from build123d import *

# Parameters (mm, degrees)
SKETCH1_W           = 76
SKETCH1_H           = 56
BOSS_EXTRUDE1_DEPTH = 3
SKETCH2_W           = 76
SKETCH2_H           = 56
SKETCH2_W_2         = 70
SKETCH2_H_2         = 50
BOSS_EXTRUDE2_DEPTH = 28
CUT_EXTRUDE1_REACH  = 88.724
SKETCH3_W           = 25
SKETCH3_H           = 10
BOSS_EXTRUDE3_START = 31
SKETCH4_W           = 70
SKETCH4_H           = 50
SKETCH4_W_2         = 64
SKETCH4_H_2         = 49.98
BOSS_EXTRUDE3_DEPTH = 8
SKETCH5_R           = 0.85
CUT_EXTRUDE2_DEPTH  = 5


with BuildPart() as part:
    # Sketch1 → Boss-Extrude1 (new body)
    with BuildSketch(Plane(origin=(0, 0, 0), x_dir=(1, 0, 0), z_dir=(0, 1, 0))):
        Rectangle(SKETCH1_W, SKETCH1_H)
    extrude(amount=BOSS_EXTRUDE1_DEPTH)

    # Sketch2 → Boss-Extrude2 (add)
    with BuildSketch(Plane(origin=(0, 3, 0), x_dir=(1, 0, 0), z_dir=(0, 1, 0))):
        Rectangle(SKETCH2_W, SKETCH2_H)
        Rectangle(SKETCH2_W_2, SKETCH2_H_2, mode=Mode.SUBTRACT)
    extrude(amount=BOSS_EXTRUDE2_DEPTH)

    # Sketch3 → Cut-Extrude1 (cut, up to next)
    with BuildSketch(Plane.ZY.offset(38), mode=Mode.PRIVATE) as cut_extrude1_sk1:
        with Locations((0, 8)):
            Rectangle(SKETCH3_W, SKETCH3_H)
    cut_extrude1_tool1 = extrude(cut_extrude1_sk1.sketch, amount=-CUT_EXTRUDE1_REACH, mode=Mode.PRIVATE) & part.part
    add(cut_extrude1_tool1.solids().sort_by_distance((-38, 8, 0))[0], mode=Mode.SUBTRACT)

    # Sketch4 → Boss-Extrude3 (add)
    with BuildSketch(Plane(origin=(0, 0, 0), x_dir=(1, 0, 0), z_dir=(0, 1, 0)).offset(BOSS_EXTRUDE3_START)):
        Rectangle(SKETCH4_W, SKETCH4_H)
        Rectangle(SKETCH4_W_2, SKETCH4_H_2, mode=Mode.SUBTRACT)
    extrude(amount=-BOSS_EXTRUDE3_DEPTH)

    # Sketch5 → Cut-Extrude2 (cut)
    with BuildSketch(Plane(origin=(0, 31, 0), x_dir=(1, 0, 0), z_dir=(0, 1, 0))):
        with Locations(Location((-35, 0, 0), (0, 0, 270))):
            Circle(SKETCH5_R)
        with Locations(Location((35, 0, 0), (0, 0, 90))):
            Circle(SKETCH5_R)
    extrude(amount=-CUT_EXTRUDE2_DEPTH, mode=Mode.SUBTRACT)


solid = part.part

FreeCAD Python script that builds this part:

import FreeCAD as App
import Part
import Sketcher
from FreeCAD import Vector
Q = App.Units.Quantity

doc = App.newDocument("Part")
params = doc.addObject("Spreadsheet::Sheet", "Params")
for row, (alias, value) in enumerate([
    ("sketch1_width", "76 mm"),
    ("sketch1_height", "56 mm"),
    ("pad1_length", "3 mm"),
    ("sketch2_width", "76 mm"),
    ("sketch2_width2", "70 mm"),
    ("sketch2_height", "56 mm"),
    ("sketch2_height2", "50 mm"),
    ("pad2_length", "28 mm"),
    ("sketch3_width", "10 mm"),
    ("sketch3_height", "25 mm"),
    ("sketch4_width", "70 mm"),
    ("sketch4_width2", "64 mm"),
    ("sketch4_height", "50 mm"),
    ("sketch4_height2", "49.98 mm"),
    ("pad3_length", "8 mm"),
    ("sketch5_diameter", "1.7 mm"),
    ("pocket2_length", "5 mm"),
], start=1):
    params.set(f"A{row}", alias)
    params.set(f"B{row}", "=" + value)
    params.setAlias(f"B{row}", alias)

body = doc.addObject("PartDesign::Body", "Body")

sketch1 = doc.addObject("Sketcher::SketchObject", "Sketch")
body.addObject(sketch1)
sketch1.AttachmentSupport = (doc.XZ_Plane, [""])
sketch1.MapMode = "FlatFace"
sketch1.addGeometry([
    Part.LineSegment(Vector(-38, -28, 0), Vector(-38, 28, 0)),
    Part.LineSegment(Vector(-38, 28, 0), Vector(38, 28, 0)),
    Part.LineSegment(Vector(38, 28, 0), Vector(38, -28, 0)),
    Part.LineSegment(Vector(38, -28, 0), Vector(-38, -28, 0)),
], False)
sketch1.addConstraint([
    Sketcher.Constraint("Coincident", 0, 2, 1, 1),
    Sketcher.Constraint("Coincident", 1, 2, 2, 1),
    Sketcher.Constraint("Coincident", 2, 2, 3, 1),
    Sketcher.Constraint("Coincident", 3, 2, 0, 1),
    Sketcher.Constraint("Vertical", 0),
    Sketcher.Constraint("Horizontal", 1),
    Sketcher.Constraint("Vertical", 2),
    Sketcher.Constraint("Horizontal", 3),
    Sketcher.Constraint("Symmetric", 0, 2, 2, 2, -1, 1),
    Sketcher.Constraint("DistanceX", 1, 1, 1, 2, Q("76 mm")),
    Sketcher.Constraint("DistanceY", 0, 1, 0, 2, Q("56 mm")),
])
sketch1.setExpression("Constraints[9]", "Params.sketch1_width")
sketch1.setExpression("Constraints[10]", "Params.sketch1_height")
pad1 = doc.addObject("PartDesign::Pad", "Pad")
body.addObject(pad1)
pad1.Profile = sketch1
pad1.setExpression("Length", "Params.pad1_length")
pad1.Reversed = True

sketch2 = doc.addObject("Sketcher::SketchObject", "Sketch001")
body.addObject(sketch2)
sketch2.AttachmentSupport = (doc.XZ_Plane, [""])
sketch2.MapMode = "FlatFace"
sketch2.AttachmentOffset = App.Placement(Vector(0, 0, -3), App.Rotation())
sketch2.addGeometry([
    Part.LineSegment(Vector(-38, -28, 0), Vector(-38, 28, 0)),
    Part.LineSegment(Vector(-38, 28, 0), Vector(38, 28, 0)),
    Part.LineSegment(Vector(38, 28, 0), Vector(38, -28, 0)),
    Part.LineSegment(Vector(38, -28, 0), Vector(-38, -28, 0)),
    Part.LineSegment(Vector(35, 25, 0), Vector(-35, 25, 0)),
    Part.LineSegment(Vector(-35, 25, 0), Vector(-35, -25, 0)),
    Part.LineSegment(Vector(-35, -25, 0), Vector(35, -25, 0)),
    Part.LineSegment(Vector(35, -25, 0), Vector(35, 25, 0)),
], False)
sketch2.addConstraint([
    Sketcher.Constraint("Coincident", 0, 2, 1, 1),
    Sketcher.Constraint("Coincident", 1, 2, 2, 1),
    Sketcher.Constraint("Coincident", 2, 2, 3, 1),
    Sketcher.Constraint("Coincident", 3, 2, 0, 1),
    Sketcher.Constraint("Coincident", 4, 2, 5, 1),
    Sketcher.Constraint("Coincident", 5, 2, 6, 1),
    Sketcher.Constraint("Coincident", 6, 2, 7, 1),
    Sketcher.Constraint("Coincident", 7, 2, 4, 1),
    Sketcher.Constraint("Vertical", 0),
    Sketcher.Constraint("Horizontal", 1),
    Sketcher.Constraint("Vertical", 2),
    Sketcher.Constraint("Horizontal", 3),
    Sketcher.Constraint("Horizontal", 4),
    Sketcher.Constraint("Vertical", 5),
    Sketcher.Constraint("Horizontal", 6),
    Sketcher.Constraint("Vertical", 7),
    Sketcher.Constraint("Symmetric", 0, 2, 2, 2, -1, 1),
    Sketcher.Constraint("Symmetric", 4, 2, 6, 2, -1, 1),
    Sketcher.Constraint("DistanceX", 1, 1, 1, 2, Q("76 mm")),
    Sketcher.Constraint("DistanceX", 4, 2, 4, 1, Q("70 mm")),
    Sketcher.Constraint("DistanceY", 0, 1, 0, 2, Q("56 mm")),
    Sketcher.Constraint("DistanceY", 5, 2, 5, 1, Q("50 mm")),
])
sketch2.setExpression("Constraints[18]", "Params.sketch2_width")
sketch2.setExpression("Constraints[19]", "Params.sketch2_width2")
sketch2.setExpression("Constraints[20]", "Params.sketch2_height")
sketch2.setExpression("Constraints[21]", "Params.sketch2_height2")
pad2 = doc.addObject("PartDesign::Pad", "Pad001")
body.addObject(pad2)
pad2.Profile = sketch2
pad2.setExpression("Length", "Params.pad2_length")
pad2.Reversed = True

sketch3 = doc.addObject("Sketcher::SketchObject", "Sketch002")
body.addObject(sketch3)
sketch3.AttachmentSupport = (doc.YZ_Plane, [""])
sketch3.MapMode = "FlatFace"
sketch3.AttachmentOffset = App.Placement(Vector(0, 0, -38), App.Rotation())
sketch3.addGeometry([
    Part.LineSegment(Vector(13, -12, 0), Vector(3, -12, 0)),
    Part.LineSegment(Vector(3, -12, 0), Vector(3, 12, 0)),
    Part.LineSegment(Vector(3, 12, 0), Vector(13, 12, 0)),
    Part.LineSegment(Vector(13, 12, 0), Vector(13, -12, 0)),
], False)
sketch3.addConstraint([
    Sketcher.Constraint("Coincident", 0, 2, 1, 1),
    Sketcher.Constraint("Coincident", 1, 2, 2, 1),
    Sketcher.Constraint("Coincident", 2, 2, 3, 1),
    Sketcher.Constraint("Coincident", 3, 2, 0, 1),
    Sketcher.Constraint("Horizontal", 0),
    Sketcher.Constraint("Vertical", 1),
    Sketcher.Constraint("Horizontal", 2),
    Sketcher.Constraint("Vertical", 3),
    Sketcher.Constraint("DistanceX", 0, 2, 0, 1, Q("10 mm")),
    Sketcher.Constraint("DistanceY", 1, 1, 1, 2, Q("25 mm")),
    Sketcher.Constraint("DistanceX", -1, 1, 0, 2, Q("3 mm")),
    Sketcher.Constraint("DistanceY", 0, 2, -1, 1, Q("12.5 mm")),
])
sketch3.setExpression("Constraints[8]", "Params.sketch3_width")
sketch3.setExpression("Constraints[9]", "Params.sketch3_height")
pocket1 = doc.addObject("PartDesign::Pocket", "Pocket")
body.addObject(pocket1)
pocket1.Profile = sketch3
pocket1.Type = "UpToFirst"
pocket1.Reversed = True

sketch4 = doc.addObject("Sketcher::SketchObject", "Sketch003")
body.addObject(sketch4)
sketch4.AttachmentSupport = (doc.XZ_Plane, [""])
sketch4.MapMode = "FlatFace"
sketch4.AttachmentOffset = App.Placement(Vector(0, 0, -31), App.Rotation())
sketch4.addGeometry([
    Part.LineSegment(Vector(-35, -25, 0), Vector(-35, 25, 0)),
    Part.LineSegment(Vector(-35, 25, 0), Vector(35, 25, 0)),
    Part.LineSegment(Vector(35, 25, 0), Vector(35, -25, 0)),
    Part.LineSegment(Vector(35, -25, 0), Vector(-35, -25, 0)),
    Part.LineSegment(Vector(32, 25, 0), Vector(-32, 25, 0)),
    Part.LineSegment(Vector(-32, 25, 0), Vector(-32, -25, 0)),
    Part.LineSegment(Vector(-32, -25, 0), Vector(32, -25, 0)),
    Part.LineSegment(Vector(32, -25, 0), Vector(32, 25, 0)),
], False)
sketch4.addConstraint([
    Sketcher.Constraint("Coincident", 0, 2, 1, 1),
    Sketcher.Constraint("Coincident", 1, 2, 2, 1),
    Sketcher.Constraint("Coincident", 2, 2, 3, 1),
    Sketcher.Constraint("Coincident", 3, 2, 0, 1),
    Sketcher.Constraint("Coincident", 4, 2, 5, 1),
    Sketcher.Constraint("Coincident", 5, 2, 6, 1),
    Sketcher.Constraint("Coincident", 6, 2, 7, 1),
    Sketcher.Constraint("Coincident", 7, 2, 4, 1),
    Sketcher.Constraint("Vertical", 0),
    Sketcher.Constraint("Horizontal", 1),
    Sketcher.Constraint("Vertical", 2),
    Sketcher.Constraint("Horizontal", 3),
    Sketcher.Constraint("Horizontal", 4),
    Sketcher.Constraint("Vertical", 5),
    Sketcher.Constraint("Horizontal", 6),
    Sketcher.Constraint("Vertical", 7),
    Sketcher.Constraint("Symmetric", 0, 2, 2, 2, -1, 1),
    Sketcher.Constraint("Symmetric", 4, 2, 6, 2, -1, 1),
    Sketcher.Constraint("DistanceX", 1, 1, 1, 2, Q("70 mm")),
    Sketcher.Constraint("DistanceX", 4, 2, 4, 1, Q("64 mm")),
    Sketcher.Constraint("DistanceY", 0, 1, 0, 2, Q("50 mm")),
    Sketcher.Constraint("DistanceY", 5, 2, 5, 1, Q("49.98 mm")),
])
sketch4.setExpression("Constraints[18]", "Params.sketch4_width")
sketch4.setExpression("Constraints[19]", "Params.sketch4_width2")
sketch4.setExpression("Constraints[20]", "Params.sketch4_height")
sketch4.setExpression("Constraints[21]", "Params.sketch4_height2")
pad3 = doc.addObject("PartDesign::Pad", "Pad002")
body.addObject(pad3)
pad3.Profile = sketch4
pad3.setExpression("Length", "Params.pad3_length")

sketch5 = doc.addObject("Sketcher::SketchObject", "Sketch004")
body.addObject(sketch5)
sketch5.AttachmentSupport = (doc.XZ_Plane, [""])
sketch5.MapMode = "FlatFace"
sketch5.AttachmentOffset = App.Placement(Vector(0, 0, -31), App.Rotation())
sketch5.addGeometry([
    Part.Circle(Vector(-35, 0, 0), Vector(0, 0, 1), 0.8),
    Part.Circle(Vector(35, 0, 0), Vector(0, 0, 1), 0.8),
], False)
sketch5.addConstraint([
    Sketcher.Constraint("Equal", 0, 1),
    Sketcher.Constraint("Symmetric", 0, 3, 1, 3, -1, 1),
    Sketcher.Constraint("PointOnObject", 0, 3, -1),
    Sketcher.Constraint("Diameter", 0, Q("1.7 mm")),
    Sketcher.Constraint("DistanceX", 0, 3, -1, 1, Q("35 mm")),
])
sketch5.setExpression("Constraints[3]", "Params.sketch5_diameter")
pocket2 = doc.addObject("PartDesign::Pocket", "Pocket001")
body.addObject(pocket2)
pocket2.Profile = sketch5
pocket2.setExpression("Length", "Params.pocket2_length")
pocket2.Reversed = True

doc.recompute()
